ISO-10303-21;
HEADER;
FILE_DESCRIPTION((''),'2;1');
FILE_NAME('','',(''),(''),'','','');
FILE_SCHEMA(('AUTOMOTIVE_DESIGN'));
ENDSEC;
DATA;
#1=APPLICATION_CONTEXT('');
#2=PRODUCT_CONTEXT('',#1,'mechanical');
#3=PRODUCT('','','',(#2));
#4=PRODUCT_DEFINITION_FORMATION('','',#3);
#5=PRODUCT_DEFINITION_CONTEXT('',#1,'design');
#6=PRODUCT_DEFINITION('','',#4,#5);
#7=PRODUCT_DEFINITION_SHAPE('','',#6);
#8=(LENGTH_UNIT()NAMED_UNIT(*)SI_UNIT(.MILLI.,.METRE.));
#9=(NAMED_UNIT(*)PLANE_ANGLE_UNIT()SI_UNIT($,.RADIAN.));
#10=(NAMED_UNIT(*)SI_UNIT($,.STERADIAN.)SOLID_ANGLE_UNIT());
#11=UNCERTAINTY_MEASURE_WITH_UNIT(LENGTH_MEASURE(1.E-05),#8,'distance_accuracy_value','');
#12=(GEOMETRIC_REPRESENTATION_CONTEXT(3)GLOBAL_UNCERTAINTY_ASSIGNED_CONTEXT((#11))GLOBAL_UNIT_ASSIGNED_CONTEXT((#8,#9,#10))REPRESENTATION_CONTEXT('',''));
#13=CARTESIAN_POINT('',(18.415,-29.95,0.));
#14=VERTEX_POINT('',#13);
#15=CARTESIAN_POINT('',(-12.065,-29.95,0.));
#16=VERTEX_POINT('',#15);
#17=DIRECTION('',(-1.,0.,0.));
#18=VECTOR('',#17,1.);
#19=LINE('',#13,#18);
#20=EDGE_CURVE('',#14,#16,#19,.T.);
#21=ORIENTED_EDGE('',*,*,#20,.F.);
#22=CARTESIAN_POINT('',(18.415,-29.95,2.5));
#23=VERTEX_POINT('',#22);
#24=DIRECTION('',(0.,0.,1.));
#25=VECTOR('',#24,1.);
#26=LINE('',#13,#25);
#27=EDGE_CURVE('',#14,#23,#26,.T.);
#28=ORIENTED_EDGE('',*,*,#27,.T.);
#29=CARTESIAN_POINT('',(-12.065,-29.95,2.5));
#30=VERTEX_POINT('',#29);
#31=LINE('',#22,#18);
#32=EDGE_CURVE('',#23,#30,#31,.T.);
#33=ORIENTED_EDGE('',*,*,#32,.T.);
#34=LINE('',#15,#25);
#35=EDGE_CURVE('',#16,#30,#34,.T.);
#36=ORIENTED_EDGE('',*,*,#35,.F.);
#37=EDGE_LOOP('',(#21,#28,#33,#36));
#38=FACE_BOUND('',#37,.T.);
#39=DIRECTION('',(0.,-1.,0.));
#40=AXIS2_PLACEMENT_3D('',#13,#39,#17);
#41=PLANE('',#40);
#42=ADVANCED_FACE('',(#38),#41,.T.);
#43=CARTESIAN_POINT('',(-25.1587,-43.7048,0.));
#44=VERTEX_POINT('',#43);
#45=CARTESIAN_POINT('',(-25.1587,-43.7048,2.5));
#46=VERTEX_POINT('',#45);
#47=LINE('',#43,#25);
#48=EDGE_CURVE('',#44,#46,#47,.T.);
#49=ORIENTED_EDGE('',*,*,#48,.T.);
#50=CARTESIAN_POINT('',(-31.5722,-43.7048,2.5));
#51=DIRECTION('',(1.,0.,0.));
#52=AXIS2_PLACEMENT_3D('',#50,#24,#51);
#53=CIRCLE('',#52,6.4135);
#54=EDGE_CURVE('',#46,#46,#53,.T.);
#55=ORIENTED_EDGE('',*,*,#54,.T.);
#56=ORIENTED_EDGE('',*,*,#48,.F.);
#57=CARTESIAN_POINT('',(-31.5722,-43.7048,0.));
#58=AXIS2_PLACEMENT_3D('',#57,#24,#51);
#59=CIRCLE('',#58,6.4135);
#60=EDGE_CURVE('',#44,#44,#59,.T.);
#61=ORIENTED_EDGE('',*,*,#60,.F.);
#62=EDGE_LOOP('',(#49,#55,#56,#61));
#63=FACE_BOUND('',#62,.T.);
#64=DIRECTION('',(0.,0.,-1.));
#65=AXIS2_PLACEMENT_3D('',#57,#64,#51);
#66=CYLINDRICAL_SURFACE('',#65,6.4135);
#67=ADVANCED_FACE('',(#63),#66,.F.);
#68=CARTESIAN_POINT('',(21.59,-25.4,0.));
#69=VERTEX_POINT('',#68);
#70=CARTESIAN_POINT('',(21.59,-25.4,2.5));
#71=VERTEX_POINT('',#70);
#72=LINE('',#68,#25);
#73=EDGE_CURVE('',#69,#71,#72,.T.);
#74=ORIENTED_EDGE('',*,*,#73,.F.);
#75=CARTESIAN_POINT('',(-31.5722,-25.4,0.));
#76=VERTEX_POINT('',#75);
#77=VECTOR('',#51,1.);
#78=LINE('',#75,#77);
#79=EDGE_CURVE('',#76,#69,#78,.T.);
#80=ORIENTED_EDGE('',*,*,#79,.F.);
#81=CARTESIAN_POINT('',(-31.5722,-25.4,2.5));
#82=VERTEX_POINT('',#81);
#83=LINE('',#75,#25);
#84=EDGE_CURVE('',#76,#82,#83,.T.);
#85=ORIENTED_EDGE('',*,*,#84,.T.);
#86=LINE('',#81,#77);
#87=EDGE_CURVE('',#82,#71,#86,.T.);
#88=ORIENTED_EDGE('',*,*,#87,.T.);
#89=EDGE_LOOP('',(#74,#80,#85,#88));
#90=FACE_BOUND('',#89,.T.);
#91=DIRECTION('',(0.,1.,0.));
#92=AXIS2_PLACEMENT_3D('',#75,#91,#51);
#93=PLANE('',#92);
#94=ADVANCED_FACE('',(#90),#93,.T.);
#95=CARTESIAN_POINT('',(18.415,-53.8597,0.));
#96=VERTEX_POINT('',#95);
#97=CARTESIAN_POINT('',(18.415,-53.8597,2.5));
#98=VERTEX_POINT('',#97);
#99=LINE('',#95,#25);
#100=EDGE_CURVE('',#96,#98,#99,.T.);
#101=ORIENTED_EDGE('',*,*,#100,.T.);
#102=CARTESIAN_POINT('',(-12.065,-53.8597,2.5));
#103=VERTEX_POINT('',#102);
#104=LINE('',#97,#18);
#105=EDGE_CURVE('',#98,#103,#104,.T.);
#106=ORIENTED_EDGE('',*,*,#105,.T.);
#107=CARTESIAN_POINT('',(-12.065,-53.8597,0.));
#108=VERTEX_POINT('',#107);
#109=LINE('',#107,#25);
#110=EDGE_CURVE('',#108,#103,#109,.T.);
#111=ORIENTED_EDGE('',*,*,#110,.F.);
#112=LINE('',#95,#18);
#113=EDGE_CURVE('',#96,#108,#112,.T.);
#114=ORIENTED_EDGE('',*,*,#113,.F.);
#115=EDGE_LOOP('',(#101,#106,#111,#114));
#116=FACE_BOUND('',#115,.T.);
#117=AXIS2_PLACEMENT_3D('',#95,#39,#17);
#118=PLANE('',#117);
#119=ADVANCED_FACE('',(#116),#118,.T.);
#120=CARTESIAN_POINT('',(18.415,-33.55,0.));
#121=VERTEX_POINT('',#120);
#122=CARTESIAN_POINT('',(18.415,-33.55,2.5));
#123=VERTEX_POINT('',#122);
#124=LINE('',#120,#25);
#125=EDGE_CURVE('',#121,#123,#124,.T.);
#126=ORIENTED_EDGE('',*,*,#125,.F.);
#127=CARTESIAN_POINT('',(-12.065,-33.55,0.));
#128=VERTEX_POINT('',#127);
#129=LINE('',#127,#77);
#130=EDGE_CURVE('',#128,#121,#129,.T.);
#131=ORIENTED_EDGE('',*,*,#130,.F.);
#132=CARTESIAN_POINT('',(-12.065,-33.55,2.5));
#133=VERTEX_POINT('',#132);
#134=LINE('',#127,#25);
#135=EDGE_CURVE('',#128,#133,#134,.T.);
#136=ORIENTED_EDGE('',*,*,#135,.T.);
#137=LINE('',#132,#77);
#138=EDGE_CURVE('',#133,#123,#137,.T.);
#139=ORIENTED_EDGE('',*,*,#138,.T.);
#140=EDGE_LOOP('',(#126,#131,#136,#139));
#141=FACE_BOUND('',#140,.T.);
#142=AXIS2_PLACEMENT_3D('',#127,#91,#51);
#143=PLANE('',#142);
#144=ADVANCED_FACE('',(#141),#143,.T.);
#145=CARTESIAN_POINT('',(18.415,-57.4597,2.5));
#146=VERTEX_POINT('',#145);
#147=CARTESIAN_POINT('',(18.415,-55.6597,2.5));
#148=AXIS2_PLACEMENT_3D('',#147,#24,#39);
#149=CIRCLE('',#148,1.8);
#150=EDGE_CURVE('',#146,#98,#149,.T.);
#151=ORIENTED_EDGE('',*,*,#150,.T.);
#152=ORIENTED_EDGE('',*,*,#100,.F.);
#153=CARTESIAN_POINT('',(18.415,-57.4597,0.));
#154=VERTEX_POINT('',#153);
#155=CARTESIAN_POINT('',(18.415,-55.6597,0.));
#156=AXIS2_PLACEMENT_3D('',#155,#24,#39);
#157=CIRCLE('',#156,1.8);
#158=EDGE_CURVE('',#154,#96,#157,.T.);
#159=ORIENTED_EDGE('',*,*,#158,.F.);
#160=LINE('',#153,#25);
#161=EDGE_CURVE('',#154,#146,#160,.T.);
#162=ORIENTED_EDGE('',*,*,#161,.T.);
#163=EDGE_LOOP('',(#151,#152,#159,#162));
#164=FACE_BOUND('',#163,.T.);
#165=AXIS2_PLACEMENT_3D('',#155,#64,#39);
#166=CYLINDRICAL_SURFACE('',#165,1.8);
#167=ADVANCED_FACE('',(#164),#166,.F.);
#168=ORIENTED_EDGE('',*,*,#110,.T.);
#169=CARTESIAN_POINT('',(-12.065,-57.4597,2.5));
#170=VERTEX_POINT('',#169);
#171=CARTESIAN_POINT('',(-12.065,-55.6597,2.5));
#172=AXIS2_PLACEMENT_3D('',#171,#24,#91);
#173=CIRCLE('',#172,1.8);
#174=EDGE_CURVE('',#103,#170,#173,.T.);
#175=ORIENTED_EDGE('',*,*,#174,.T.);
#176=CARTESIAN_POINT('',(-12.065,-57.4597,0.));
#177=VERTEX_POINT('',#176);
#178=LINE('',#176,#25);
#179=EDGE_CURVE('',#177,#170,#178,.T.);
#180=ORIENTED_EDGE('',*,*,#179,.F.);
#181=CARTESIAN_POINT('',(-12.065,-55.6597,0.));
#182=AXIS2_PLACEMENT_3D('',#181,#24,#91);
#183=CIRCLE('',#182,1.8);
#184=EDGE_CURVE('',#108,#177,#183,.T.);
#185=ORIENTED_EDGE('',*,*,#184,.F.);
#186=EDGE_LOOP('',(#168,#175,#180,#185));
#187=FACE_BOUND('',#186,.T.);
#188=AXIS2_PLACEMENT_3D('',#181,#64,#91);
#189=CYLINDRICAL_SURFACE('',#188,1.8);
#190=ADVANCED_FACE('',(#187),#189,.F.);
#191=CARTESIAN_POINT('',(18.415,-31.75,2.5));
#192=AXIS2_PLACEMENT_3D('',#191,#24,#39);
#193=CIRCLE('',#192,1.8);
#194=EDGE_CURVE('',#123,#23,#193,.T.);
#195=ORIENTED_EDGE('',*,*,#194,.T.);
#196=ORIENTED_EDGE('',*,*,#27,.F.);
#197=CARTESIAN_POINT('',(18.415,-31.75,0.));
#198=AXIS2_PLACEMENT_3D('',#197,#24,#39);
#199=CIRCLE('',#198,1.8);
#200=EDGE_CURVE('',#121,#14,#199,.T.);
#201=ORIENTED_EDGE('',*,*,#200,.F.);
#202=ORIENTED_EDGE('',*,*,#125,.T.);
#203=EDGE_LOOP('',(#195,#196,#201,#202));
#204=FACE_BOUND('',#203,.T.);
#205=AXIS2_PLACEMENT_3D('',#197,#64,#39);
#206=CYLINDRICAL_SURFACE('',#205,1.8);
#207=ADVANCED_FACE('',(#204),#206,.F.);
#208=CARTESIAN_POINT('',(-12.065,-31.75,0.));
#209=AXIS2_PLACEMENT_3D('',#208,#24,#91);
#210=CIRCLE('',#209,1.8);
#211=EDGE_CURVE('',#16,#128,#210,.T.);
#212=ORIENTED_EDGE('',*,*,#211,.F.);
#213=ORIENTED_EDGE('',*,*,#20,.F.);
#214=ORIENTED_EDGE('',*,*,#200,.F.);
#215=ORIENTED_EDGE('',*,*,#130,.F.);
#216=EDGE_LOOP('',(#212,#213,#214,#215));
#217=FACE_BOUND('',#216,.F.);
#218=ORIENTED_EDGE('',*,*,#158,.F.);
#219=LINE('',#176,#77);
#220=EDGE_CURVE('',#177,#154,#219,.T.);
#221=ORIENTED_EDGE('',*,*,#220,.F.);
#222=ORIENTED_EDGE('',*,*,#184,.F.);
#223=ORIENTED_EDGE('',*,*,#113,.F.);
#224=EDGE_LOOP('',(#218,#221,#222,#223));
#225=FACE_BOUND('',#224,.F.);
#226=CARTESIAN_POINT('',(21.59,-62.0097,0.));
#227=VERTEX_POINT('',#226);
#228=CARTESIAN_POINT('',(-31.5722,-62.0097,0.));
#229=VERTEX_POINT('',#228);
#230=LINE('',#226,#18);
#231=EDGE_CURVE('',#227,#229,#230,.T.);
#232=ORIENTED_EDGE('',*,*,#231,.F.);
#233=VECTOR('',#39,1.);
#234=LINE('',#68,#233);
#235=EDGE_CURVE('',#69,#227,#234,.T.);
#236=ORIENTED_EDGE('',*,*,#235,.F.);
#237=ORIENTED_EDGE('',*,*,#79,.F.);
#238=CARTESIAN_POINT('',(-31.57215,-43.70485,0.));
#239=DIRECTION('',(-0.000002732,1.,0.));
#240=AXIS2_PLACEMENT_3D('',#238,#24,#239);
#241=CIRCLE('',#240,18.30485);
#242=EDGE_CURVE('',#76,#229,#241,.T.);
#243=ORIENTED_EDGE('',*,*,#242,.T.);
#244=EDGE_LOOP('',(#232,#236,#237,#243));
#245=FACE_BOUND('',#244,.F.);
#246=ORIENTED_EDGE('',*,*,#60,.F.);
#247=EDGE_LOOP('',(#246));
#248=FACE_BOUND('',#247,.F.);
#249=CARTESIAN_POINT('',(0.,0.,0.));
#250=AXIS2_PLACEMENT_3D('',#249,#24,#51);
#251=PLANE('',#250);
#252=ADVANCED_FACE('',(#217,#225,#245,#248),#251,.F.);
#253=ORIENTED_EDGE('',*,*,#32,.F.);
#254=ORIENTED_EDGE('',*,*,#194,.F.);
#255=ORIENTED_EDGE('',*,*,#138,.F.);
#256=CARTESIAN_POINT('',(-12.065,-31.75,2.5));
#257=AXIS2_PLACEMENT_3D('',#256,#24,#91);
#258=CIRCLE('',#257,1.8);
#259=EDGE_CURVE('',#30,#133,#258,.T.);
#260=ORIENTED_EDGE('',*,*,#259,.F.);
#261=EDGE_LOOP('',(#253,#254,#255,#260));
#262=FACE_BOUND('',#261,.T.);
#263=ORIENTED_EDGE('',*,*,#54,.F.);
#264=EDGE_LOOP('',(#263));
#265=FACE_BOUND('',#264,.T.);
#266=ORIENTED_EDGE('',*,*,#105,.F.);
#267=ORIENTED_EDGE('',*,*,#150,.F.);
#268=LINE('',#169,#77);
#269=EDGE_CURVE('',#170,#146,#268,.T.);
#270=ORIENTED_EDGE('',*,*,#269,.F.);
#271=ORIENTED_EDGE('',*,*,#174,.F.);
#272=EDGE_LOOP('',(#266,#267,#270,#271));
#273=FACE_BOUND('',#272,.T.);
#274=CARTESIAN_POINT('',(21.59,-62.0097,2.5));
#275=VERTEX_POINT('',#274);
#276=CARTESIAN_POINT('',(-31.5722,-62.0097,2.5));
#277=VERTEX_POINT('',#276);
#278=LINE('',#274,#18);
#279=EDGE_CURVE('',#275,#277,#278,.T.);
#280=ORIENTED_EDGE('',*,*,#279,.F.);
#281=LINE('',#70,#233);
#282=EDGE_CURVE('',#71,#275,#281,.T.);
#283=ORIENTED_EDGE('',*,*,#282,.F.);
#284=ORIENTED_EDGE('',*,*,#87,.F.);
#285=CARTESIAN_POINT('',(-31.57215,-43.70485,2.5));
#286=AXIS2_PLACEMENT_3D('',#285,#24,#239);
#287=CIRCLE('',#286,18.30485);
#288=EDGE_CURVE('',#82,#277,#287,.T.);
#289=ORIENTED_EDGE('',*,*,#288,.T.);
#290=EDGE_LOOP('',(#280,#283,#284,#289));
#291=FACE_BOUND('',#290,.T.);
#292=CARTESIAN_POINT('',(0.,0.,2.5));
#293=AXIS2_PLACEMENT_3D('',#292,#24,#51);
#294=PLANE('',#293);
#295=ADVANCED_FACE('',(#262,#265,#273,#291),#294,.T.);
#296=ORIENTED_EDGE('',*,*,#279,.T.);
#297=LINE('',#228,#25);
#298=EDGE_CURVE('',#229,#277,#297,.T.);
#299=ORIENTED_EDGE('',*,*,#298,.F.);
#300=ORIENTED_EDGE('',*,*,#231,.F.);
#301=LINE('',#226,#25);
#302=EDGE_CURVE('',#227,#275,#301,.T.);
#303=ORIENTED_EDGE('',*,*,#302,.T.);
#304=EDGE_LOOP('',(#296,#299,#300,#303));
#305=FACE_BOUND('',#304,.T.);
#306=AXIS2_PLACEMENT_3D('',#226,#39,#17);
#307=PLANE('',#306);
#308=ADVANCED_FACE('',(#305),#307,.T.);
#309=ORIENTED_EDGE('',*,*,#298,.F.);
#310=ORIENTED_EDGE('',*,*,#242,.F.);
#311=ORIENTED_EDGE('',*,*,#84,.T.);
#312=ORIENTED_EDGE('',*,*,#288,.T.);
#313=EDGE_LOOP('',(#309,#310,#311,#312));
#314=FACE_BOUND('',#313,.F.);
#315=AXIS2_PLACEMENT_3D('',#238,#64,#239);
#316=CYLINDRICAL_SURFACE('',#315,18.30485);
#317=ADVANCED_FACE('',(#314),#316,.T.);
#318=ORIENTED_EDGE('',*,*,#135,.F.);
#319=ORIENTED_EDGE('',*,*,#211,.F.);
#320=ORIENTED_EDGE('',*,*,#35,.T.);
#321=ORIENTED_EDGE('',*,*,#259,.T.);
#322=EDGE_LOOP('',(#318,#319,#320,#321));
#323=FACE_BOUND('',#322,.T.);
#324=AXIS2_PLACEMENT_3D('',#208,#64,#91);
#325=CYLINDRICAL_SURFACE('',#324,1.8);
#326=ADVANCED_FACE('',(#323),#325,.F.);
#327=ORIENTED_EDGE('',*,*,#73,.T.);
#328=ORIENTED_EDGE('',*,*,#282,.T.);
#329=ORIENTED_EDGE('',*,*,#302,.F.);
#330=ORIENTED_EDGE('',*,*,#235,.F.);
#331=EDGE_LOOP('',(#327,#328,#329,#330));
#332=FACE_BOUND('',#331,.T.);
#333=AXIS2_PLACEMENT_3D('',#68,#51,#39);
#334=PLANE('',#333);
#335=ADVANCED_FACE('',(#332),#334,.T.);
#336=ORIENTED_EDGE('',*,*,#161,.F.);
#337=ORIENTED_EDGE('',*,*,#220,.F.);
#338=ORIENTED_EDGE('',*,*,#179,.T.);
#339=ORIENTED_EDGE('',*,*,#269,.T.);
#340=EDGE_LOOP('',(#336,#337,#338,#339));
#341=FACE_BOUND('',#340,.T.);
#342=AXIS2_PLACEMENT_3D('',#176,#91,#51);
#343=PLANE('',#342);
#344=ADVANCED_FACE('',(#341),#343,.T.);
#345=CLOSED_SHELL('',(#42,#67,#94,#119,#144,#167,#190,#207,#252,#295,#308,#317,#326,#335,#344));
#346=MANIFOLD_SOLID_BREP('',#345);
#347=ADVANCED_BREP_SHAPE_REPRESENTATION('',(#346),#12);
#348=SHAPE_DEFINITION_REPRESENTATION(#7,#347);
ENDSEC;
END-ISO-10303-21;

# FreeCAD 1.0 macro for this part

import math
import FreeCAD as App
import Part
import Sketcher
Q = App.Units.Quantity

doc = App.newDocument("Part")
body = doc.addObject("PartDesign::Body", "Body")

# Sketch on XY plane
sketch1 = body.newObject("Sketcher::SketchObject", "Sketch")
sketch1.AttachmentSupport = (doc.getObject("XY_Plane"), [""])
sketch1.MapMode = "FlatFace"
sketch1.addGeometry([
    Part.LineSegment(App.Vector(-31.6, -62, 0), App.Vector(21.6, -62, 0)),  # 0
    Part.LineSegment(App.Vector(21.6, -62, 0), App.Vector(21.6, -25.4, 0)),  # 1
    Part.LineSegment(App.Vector(21.6, -25.4, 0), App.Vector(-31.6, -25.4, 0)),  # 2
    Part.ArcOfCircle(Part.Circle(App.Vector(-31.6, -43.7, 0), App.Vector(0, 0, 1), 18.3), math.radians(90), math.radians(270)),  # 3
    Part.LineSegment(App.Vector(-12.1, -53.9, 0), App.Vector(18.4, -53.9, 0)),  # 4
    Part.ArcOfCircle(Part.Circle(App.Vector(18.4, -55.7, 0), App.Vector(0, 0, 1), 1.8), math.radians(-90), math.radians(90)),  # 5
    Part.LineSegment(App.Vector(18.4, -57.5, 0), App.Vector(-12.1, -57.5, 0)),  # 6
    Part.ArcOfCircle(Part.Circle(App.Vector(-12.1, -55.7, 0), App.Vector(0, 0, 1), 1.8), math.radians(90), math.radians(270)),  # 7
    Part.Circle(App.Vector(-31.6, -43.7, 0), App.Vector(0, 0, 1), 6.4),  # 8
    Part.LineSegment(App.Vector(-12.1, -29.9, 0), App.Vector(18.4, -29.9, 0)),  # 9
    Part.ArcOfCircle(Part.Circle(App.Vector(18.4, -31.8, 0), App.Vector(0, 0, 1), 1.8), math.radians(-90), math.radians(90)),  # 10
    Part.LineSegment(App.Vector(18.4, -33.5, 0), App.Vector(-12.1, -33.5, 0)),  # 11
    Part.ArcOfCircle(Part.Circle(App.Vector(-12.1, -31.8, 0), App.Vector(0, 0, 1), 1.8), math.radians(90), math.radians(270)),  # 12
], False)
sketch1.addConstraint([
    Sketcher.Constraint("Coincident", 0, 2, 1, 1),
    Sketcher.Constraint("Coincident", 1, 2, 2, 1),
    Sketcher.Constraint("Tangent", 2, 2, 3, 1),
    Sketcher.Constraint("Tangent", 3, 2, 0, 1),
    Sketcher.Constraint("Tangent", 4, 2, 5, 2),
    Sketcher.Constraint("Tangent", 5, 1, 6, 1),
    Sketcher.Constraint("Tangent", 6, 2, 7, 2),
    Sketcher.Constraint("Tangent", 7, 1, 4, 1),
    Sketcher.Constraint("Tangent", 9, 2, 10, 2),
    Sketcher.Constraint("Tangent", 10, 1, 11, 1),
    Sketcher.Constraint("Tangent", 11, 2, 12, 2),
    Sketcher.Constraint("Tangent", 12, 1, 9, 1),
    Sketcher.Constraint("Horizontal", 0),
    Sketcher.Constraint("Vertical", 1),
    Sketcher.Constraint("Horizontal", 2),
    Sketcher.Constraint("Horizontal", 4),
    Sketcher.Constraint("Horizontal", 6),
    Sketcher.Constraint("Horizontal", 9),
    Sketcher.Constraint("Horizontal", 11),
    Sketcher.Constraint("Coincident", 8, 3, 3, 3),
    Sketcher.Constraint("Equal", 7, 10),
    Sketcher.Constraint("Vertical", 5, 3, 10, 3),
    Sketcher.Constraint("Vertical", 7, 3, 12, 3),
    Sketcher.Constraint("Diameter", 8, Q("0.505 in")),
    Sketcher.Constraint("DistanceX", 4, 1, 4, 2, Q("1.2 in")),
    Sketcher.Constraint("DistanceY", 1, 2, -1, 1, Q("1 in")),
    Sketcher.Constraint("DistanceX", 0, 1, 0, 2, Q("2.093 in")),
    Sketcher.Constraint("DistanceY", 10, 3, -1, 1, Q("1.25 in")),
    Sketcher.Constraint("DistanceX", -1, 1, 0, 2, Q("0.85 in")),
    Sketcher.Constraint("Radius", 3, 18.3048),
    Sketcher.Constraint("Radius", 5, 1.8),
    Sketcher.Constraint("DistanceY", 0, 2, 5, 3, Q("0.25 in")),
    Sketcher.Constraint("DistanceX", -1, 1, 5, 3, Q("0.725 in")),
])
pad1 = body.newObject("PartDesign::Pad", "Pad")
pad1.Profile = sketch1
pad1.Length = 2.5

doc.recompute()
